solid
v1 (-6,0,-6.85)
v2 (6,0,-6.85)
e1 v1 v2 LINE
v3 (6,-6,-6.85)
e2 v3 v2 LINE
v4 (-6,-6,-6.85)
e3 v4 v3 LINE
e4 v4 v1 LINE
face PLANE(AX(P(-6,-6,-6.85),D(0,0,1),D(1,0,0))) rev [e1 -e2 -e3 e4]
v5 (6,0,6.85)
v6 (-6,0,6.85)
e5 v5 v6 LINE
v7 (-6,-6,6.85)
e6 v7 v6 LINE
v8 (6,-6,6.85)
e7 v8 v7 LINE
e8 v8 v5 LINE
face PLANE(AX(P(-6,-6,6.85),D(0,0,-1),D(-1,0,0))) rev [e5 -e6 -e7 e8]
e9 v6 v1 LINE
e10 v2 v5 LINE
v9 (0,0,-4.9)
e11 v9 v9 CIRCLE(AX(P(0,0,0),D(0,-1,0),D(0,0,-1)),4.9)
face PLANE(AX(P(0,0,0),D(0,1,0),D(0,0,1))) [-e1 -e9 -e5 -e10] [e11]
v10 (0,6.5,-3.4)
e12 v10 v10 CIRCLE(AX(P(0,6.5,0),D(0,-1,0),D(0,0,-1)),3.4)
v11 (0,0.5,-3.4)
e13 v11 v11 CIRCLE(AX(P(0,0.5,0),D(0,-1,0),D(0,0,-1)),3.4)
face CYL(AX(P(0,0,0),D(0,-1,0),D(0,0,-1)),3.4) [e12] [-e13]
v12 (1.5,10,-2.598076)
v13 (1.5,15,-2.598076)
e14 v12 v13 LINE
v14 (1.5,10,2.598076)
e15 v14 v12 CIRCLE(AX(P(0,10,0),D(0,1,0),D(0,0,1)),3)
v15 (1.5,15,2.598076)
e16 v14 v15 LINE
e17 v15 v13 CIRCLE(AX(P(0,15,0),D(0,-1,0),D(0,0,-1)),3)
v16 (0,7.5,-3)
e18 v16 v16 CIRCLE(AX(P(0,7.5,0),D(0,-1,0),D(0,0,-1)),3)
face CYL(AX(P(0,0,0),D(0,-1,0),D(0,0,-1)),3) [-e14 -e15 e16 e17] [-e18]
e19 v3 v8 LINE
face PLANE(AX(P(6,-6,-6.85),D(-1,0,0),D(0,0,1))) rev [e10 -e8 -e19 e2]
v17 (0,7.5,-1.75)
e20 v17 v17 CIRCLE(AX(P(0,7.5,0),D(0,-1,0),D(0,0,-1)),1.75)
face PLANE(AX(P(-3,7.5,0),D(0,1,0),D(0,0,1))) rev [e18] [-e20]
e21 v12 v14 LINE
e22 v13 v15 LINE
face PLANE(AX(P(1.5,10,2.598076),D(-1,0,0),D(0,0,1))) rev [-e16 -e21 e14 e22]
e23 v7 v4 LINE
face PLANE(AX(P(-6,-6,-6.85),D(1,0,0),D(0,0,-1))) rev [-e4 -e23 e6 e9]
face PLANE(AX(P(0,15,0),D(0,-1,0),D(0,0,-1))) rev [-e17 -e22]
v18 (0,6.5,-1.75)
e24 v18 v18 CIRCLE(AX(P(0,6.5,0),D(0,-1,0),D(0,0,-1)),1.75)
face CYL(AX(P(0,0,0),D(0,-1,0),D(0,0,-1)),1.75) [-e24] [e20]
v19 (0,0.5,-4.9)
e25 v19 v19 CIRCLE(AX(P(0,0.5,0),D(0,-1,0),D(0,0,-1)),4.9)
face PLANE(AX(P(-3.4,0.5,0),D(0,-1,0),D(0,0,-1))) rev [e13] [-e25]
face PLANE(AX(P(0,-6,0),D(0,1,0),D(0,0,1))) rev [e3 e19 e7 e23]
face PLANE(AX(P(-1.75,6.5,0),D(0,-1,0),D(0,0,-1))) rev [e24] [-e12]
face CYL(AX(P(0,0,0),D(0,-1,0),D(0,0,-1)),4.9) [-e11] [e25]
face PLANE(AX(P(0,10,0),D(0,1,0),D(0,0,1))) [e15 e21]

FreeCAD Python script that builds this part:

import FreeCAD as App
import Part
import Sketcher

V = App.Vector
Q = App.Units.Quantity

doc = App.newDocument("Part")
params = doc.addObject("Spreadsheet::Sheet", "Params")
for row, (alias, value) in enumerate([
    ("sketch1_width", "3 mm"),
    ("sketch1_height", "1 mm"),
    ("sketch1_height2", "6 mm"),
    ("sketch1_height3", "15 mm"),
    ("sketch1_width2", "1.5 mm"),
    ("revolution_angle", "360 deg"),
    ("sketch2_width", "3 mm"),
    ("pocket1_length", "5 mm"),
    ("sketch3_width", "12 mm"),
    ("sketch3_height", "13.7 mm"),
    ("pad1_length", "6 mm"),
], start=1):
    params.set(f"A{row}", alias)
    params.set(f"B{row}", "=" + value)
    params.setAlias(f"B{row}", alias)

body = doc.addObject("PartDesign::Body", "Body")

# Sketch on XY plane
sketch1 = doc.addObject("Sketcher::SketchObject", "Sketch")
body.addObject(sketch1)
sketch1.AttachmentSupport = (doc.XY_Plane, [""])
sketch1.MapMode = "FlatFace"
sketch1.addGeometry([
    Part.LineSegment(V(0, 15, 0), V(-3, 15, 0)),  # 0
    Part.LineSegment(V(-3, 15, 0), V(-3, 7.5, 0)),  # 1
    Part.LineSegment(V(-3, 7.5, 0), V(-1.8, 7.5, 0)),  # 2
    Part.LineSegment(V(-1.8, 7.5, 0), V(-1.8, 6.5, 0)),  # 3
    Part.LineSegment(V(-1.8, 6.5, 0), V(-3.4, 6.5, 0)),  # 4
    Part.LineSegment(V(-3.4, 6.5, 0), V(-3.4, 0.5, 0)),  # 5
    Part.LineSegment(V(-3.4, 0.5, 0), V(-4.9, 0.5, 0)),  # 6
    Part.LineSegment(V(-4.9, 0.5, 0), V(-4.9, 0, 0)),  # 7
    Part.LineSegment(V(-4.9, 0, 0), V(0, 0, 0)),  # 8
    Part.LineSegment(V(0, 0, 0), V(0, 15, 0)),  # 9
], False)
sketch1.addConstraint([
    Sketcher.Constraint("Coincident", 0, 2, 1, 1),
    Sketcher.Constraint("Coincident", 1, 2, 2, 1),
    Sketcher.Constraint("Coincident", 2, 2, 3, 1),
    Sketcher.Constraint("Coincident", 3, 2, 4, 1),
    Sketcher.Constraint("Coincident", 4, 2, 5, 1),
    Sketcher.Constraint("Coincident", 5, 2, 6, 1),
    Sketcher.Constraint("Coincident", 6, 2, 7, 1),
    Sketcher.Constraint("Coincident", 7, 2, 8, 1),
    Sketcher.Constraint("Coincident", 8, 2, 9, 1),
    Sketcher.Constraint("Coincident", 9, 2, 0, 1),
    Sketcher.Constraint("Horizontal", 0),
    Sketcher.Constraint("Vertical", 1),
    Sketcher.Constraint("Horizontal", 2),
    Sketcher.Constraint("Vertical", 3),
    Sketcher.Constraint("Horizontal", 4),
    Sketcher.Constraint("Vertical", 5),
    Sketcher.Constraint("Horizontal", 6),
    Sketcher.Constraint("Vertical", 7),
    Sketcher.Constraint("Horizontal", 8),
    Sketcher.Constraint("Vertical", 9),
    Sketcher.Constraint("Coincident", 8, 2, -1, 1),
    Sketcher.Constraint("DistanceX", 0, 2, 0, 1, Q("3 mm")),
    Sketcher.Constraint("DistanceY", 3, 2, 3, 1, Q("1 mm")),
    Sketcher.Constraint("DistanceY", 5, 2, 5, 1, Q("6 mm")),
    Sketcher.Constraint("DistanceY", 9, 1, 9, 2, Q("15 mm")),
    Sketcher.Constraint("DistanceX", 6, 2, 6, 1, Q("1.5 mm")),
    Sketcher.Constraint("DistanceX", 8, 1, 8, 2, Q("4.9 mm")),
    Sketcher.Constraint("DistanceY", 1, 2, 1, 1, Q("7.5 mm")),
    Sketcher.Constraint("DistanceX", 2, 1, 2, 2, Q("1.25 mm")),
])
sketch1.setExpression("Constraints[21]", "Params.sketch1_width")
sketch1.setExpression("Constraints[22]", "Params.sketch1_height")
sketch1.setExpression("Constraints[23]", "Params.sketch1_height2")
sketch1.setExpression("Constraints[24]", "Params.sketch1_height3")
sketch1.setExpression("Constraints[25]", "Params.sketch1_width2")
revolution = doc.addObject("PartDesign::Revolution", "Revolution")
body.addObject(revolution)
revolution.Profile = sketch1
revolution.ReferenceAxis = (sketch1, ["V_Axis"])
revolution.setExpression("Angle", "Params.revolution_angle")

# Sketch on XZ plane
sketch2 = doc.addObject("Sketcher::SketchObject", "Sketch001")
body.addObject(sketch2)
sketch2.AttachmentSupport = (doc.XZ_Plane, [""])
sketch2.MapMode = "FlatFace"
sketch2.AttachmentOffset = App.Placement(V(0, 0, -15), App.Rotation())
sketch2.addGeometry([
    Part.LineSegment(V(1.5, -2.6, 0), V(1.5, 2.6, 0)),
    Part.LineSegment(V(1.5, 2.6, 0), V(4.5, 2.6, 0)),
    Part.LineSegment(V(4.5, 2.6, 0), V(4.5, -2.6, 0)),
    Part.LineSegment(V(4.5, -2.6, 0), V(1.5, -2.6, 0)),
], False)
sketch2.addConstraint([
    Sketcher.Constraint("Coincident", 0, 2, 1, 1),
    Sketcher.Constraint("Coincident", 1, 2, 2, 1),
    Sketcher.Constraint("Coincident", 2, 2, 3, 1),
    Sketcher.Constraint("Coincident", 3, 2, 0, 1),
    Sketcher.Constraint("Vertical", 0),
    Sketcher.Constraint("Horizontal", 1),
    Sketcher.Constraint("Vertical", 2),
    Sketcher.Constraint("Horizontal", 3),
    Sketcher.Constraint("DistanceX", 1, 1, 1, 2, Q("3 mm")),
    Sketcher.Constraint("DistanceX", -1, 1, 0, 2, Q("1.5 mm")),
    Sketcher.Constraint("DistanceY", 0, 1, 0, 2, Q("5.196152 mm")),
    Sketcher.Constraint("DistanceY", -1, 1, 0, 2, Q("2.598076 mm")),
])
sketch2.setExpression("Constraints[8]", "Params.sketch2_width")
pocket1 = doc.addObject("PartDesign::Pocket", "Pocket")
body.addObject(pocket1)
pocket1.Profile = sketch2
pocket1.setExpression("Length", "Params.pocket1_length")
pocket1.Reversed = True

# Sketch on XZ plane
sketch3 = doc.addObject("Sketcher::SketchObject", "Sketch002")
body.addObject(sketch3)
sketch3.AttachmentSupport = (doc.XZ_Plane, [""])
sketch3.MapMode = "FlatFace"
sketch3.addGeometry([
    Part.LineSegment(V(6, -7, 0), V(6, 7, 0)),
    Part.LineSegment(V(6, 7, 0), V(-6, 7, 0)),
    Part.LineSegment(V(-6, 7, 0), V(-6, -7, 0)),
    Part.LineSegment(V(-6, -7, 0), V(6, -7, 0)),
], False)
sketch3.addConstraint([
    Sketcher.Constraint("Coincident", 0, 2, 1, 1),
    Sketcher.Constraint("Coincident", 1, 2, 2, 1),
    Sketcher.Constraint("Coincident", 2, 2, 3, 1),
    Sketcher.Constraint("Coincident", 3, 2, 0, 1),
    Sketcher.Constraint("Vertical", 0),
    Sketcher.Constraint("Horizontal", 1),
    Sketcher.Constraint("Vertical", 2),
    Sketcher.Constraint("Horizontal", 3),
    Sketcher.Constraint("Symmetric", 0, 2, 2, 2, -1, 1),
    Sketcher.Constraint("DistanceX", 1, 2, 1, 1, Q("12 mm")),
    Sketcher.Constraint("DistanceY", 0, 1, 0, 2, Q("13.7 mm")),
])
sketch3.setExpression("Constraints[9]", "Params.sketch3_width")
sketch3.setExpression("Constraints[10]", "Params.sketch3_height")
pad1 = doc.addObject("PartDesign::Pad", "Pad")
body.addObject(pad1)
pad1.Profile = sketch3
pad1.setExpression("Length", "Params.pad1_length")

doc.recompute()
